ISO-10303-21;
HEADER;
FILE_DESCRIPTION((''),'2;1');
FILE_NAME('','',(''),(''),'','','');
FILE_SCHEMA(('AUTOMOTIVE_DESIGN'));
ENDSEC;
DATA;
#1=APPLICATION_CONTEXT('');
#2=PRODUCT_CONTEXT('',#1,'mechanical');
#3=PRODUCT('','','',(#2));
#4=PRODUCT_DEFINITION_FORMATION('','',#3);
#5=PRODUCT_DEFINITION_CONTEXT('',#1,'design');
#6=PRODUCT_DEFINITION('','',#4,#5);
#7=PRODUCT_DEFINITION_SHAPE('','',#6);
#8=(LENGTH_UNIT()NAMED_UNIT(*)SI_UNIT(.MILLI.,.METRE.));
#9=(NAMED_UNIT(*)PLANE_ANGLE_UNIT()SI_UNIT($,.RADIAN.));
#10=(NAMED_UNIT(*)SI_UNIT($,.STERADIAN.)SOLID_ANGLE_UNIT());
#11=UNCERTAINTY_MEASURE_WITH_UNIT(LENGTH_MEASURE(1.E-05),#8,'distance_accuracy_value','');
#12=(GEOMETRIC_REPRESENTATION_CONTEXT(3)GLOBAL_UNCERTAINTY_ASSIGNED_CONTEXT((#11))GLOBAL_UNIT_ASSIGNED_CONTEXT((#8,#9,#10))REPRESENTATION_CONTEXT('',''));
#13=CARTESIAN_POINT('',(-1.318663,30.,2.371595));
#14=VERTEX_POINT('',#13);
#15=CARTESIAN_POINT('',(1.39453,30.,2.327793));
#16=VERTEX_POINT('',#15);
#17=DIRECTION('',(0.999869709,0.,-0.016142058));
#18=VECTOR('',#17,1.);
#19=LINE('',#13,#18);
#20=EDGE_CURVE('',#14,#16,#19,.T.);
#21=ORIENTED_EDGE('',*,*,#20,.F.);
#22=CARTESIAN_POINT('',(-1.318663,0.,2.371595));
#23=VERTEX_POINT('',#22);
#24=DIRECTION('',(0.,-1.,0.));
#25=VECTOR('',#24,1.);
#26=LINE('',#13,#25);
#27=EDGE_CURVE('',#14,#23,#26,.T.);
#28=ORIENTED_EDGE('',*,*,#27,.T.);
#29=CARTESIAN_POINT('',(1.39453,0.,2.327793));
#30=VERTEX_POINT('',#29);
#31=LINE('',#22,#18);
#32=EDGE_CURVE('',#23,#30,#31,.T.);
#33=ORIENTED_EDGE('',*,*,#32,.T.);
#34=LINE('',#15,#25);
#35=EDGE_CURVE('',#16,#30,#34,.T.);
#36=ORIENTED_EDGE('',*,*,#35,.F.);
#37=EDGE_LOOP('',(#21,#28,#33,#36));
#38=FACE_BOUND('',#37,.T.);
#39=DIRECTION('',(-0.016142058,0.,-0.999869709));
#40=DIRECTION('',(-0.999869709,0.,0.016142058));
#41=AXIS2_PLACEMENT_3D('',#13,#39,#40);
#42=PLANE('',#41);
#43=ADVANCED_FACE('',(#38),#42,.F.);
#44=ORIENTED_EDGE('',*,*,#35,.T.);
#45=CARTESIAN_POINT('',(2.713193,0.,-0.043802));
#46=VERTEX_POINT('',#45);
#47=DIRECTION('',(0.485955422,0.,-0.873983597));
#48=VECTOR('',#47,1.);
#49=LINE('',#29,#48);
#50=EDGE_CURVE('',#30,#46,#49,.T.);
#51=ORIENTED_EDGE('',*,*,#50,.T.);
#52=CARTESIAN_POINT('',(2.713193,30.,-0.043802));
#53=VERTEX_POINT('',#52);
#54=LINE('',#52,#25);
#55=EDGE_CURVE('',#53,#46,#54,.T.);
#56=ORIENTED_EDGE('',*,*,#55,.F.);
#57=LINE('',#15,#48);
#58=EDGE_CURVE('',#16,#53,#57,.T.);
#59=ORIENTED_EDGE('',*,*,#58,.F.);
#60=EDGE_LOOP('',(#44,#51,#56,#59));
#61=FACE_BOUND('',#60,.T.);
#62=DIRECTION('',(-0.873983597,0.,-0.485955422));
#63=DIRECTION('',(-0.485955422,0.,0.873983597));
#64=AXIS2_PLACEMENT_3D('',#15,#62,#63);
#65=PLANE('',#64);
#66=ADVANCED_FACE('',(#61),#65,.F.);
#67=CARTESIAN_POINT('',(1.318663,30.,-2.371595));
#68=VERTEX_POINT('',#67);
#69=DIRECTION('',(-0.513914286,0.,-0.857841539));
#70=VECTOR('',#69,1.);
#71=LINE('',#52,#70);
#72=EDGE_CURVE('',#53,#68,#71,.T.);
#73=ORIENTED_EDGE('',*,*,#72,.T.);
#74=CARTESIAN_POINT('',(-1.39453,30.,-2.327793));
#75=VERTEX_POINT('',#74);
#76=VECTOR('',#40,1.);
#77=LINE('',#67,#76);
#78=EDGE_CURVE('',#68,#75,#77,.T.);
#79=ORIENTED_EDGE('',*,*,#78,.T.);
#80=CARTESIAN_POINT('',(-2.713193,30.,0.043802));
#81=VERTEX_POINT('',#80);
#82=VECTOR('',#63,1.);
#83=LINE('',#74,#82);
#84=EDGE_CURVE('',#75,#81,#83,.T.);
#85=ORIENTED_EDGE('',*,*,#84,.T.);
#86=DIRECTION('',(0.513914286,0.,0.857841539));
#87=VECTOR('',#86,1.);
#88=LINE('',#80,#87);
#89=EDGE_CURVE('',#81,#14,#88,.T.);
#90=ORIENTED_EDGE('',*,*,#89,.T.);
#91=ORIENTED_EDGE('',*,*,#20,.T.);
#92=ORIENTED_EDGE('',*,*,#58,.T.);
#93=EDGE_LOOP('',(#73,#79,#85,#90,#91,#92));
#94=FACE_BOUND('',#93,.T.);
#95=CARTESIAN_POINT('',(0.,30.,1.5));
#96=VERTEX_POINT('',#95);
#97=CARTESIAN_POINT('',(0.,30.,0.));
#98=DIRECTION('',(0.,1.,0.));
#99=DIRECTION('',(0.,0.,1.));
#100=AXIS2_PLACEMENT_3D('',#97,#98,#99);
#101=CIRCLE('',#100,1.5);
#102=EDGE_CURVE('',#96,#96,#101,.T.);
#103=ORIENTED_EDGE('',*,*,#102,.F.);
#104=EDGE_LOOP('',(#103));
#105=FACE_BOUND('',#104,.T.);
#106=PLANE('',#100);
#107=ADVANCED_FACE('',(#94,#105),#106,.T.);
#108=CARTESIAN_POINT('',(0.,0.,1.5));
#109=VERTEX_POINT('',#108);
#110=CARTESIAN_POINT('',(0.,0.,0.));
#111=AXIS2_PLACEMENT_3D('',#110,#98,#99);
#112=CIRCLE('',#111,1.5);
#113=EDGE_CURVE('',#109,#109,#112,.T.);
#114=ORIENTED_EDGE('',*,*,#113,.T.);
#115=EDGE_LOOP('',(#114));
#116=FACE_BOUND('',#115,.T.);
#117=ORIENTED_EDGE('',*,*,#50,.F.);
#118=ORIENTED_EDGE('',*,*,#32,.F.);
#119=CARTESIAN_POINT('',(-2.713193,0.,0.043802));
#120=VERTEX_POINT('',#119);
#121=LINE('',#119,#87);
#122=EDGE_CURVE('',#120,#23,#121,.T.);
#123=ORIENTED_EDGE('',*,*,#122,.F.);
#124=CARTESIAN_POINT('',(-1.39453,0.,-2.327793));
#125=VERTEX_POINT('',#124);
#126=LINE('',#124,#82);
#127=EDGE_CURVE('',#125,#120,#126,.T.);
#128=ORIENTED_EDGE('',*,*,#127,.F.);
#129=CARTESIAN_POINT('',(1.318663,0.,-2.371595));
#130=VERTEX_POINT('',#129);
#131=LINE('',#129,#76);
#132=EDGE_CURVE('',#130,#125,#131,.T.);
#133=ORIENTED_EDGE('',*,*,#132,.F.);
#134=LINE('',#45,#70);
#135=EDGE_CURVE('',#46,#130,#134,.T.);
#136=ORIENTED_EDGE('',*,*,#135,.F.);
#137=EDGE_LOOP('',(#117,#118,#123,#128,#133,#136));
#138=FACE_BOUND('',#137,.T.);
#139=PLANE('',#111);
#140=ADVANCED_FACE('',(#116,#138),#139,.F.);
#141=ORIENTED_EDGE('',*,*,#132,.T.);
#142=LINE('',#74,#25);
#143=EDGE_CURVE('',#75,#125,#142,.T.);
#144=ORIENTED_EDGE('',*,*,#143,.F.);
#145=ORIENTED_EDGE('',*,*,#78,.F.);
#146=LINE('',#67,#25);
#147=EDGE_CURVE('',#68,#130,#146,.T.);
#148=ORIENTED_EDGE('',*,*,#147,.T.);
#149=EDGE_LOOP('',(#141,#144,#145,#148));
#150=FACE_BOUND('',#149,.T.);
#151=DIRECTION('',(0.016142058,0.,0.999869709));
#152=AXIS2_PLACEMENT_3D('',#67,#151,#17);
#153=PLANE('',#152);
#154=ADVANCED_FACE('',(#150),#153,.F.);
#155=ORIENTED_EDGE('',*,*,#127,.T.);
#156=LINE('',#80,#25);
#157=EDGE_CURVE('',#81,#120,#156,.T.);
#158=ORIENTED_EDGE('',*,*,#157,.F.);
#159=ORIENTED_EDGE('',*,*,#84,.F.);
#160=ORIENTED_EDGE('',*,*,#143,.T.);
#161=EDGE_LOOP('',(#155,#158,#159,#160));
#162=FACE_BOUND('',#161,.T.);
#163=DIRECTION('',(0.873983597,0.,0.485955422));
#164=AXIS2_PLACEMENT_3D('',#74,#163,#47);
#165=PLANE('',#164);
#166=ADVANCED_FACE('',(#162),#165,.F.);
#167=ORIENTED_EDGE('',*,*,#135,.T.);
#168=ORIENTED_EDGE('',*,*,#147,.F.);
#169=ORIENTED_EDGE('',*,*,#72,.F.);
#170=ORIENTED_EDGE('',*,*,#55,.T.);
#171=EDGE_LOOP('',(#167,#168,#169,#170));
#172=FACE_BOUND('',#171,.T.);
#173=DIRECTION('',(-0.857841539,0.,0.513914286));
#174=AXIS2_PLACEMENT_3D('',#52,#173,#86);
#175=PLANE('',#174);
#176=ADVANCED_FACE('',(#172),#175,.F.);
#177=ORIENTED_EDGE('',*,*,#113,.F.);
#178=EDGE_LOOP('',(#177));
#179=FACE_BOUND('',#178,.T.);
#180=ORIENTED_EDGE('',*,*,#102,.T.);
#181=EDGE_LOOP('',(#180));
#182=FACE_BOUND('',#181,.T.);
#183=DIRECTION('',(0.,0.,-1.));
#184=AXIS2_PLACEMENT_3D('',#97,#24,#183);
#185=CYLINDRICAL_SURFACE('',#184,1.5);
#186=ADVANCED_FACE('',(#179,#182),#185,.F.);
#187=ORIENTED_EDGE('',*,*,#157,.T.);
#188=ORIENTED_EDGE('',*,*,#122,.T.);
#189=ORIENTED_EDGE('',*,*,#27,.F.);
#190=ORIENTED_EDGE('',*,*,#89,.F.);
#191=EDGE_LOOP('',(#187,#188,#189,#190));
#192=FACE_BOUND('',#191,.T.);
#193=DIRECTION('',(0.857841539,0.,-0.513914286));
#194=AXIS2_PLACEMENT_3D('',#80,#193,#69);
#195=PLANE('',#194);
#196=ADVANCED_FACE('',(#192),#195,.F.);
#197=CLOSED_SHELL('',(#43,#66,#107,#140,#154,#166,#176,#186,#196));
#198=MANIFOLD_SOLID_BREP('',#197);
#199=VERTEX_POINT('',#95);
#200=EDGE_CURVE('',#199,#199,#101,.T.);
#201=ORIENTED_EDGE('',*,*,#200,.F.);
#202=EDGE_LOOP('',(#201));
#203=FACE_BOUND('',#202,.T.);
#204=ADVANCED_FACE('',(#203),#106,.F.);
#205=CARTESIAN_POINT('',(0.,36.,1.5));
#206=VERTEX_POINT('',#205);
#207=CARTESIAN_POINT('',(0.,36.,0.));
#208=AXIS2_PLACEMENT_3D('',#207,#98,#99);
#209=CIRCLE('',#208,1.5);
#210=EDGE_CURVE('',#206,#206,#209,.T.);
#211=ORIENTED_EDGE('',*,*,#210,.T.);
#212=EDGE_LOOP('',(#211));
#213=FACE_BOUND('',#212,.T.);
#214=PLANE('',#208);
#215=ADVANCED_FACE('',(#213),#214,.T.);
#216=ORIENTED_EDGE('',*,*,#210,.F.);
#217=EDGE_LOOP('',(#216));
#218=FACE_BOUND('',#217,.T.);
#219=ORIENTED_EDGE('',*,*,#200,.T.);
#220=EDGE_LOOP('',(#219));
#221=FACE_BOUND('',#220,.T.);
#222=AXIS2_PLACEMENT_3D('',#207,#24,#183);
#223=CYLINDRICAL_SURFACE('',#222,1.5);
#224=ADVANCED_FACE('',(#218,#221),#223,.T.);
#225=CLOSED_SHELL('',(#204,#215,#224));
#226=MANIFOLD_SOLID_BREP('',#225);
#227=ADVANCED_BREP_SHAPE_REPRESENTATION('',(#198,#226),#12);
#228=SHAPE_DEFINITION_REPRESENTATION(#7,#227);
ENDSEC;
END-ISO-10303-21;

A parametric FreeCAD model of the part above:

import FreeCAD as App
import Part
import Sketcher

V = App.Vector


def add_polygon(sketch, points):
    """Adds a closed chain of lines whose ends are joined by coincident constraints."""
    first, n = sketch.GeometryCount, len(points)
    for a, b in zip(points, points[1:] + points[:1]):
        sketch.addGeometry(Part.LineSegment(App.Vector(*a, 0), App.Vector(*b, 0)), False)
    for i in range(n):
        sketch.addConstraint(Sketcher.Constraint("Coincident", first + i, 2, first + (i + 1) % n, 1))

doc = App.newDocument("Part")
body = doc.addObject("PartDesign::Body", "Body")

# Sketch on XZ plane
sketch1 = body.newObject("Sketcher::SketchObject", "Sketch")
sketch1.AttachmentSupport = (doc.getObject("XZ_Plane"), [""])
sketch1.MapMode = "FlatFace"
add_polygon(sketch1, [(1.39453, 2.327793), (2.713193, -0.043802), (1.318663, -2.371595), (-1.39453, -2.327793), (-2.713193, 0.043802), (-1.318663, 2.371595)])  # lines 0-5
sketch1.addGeometry(Part.Circle(V(0, 0, 0), V(0, 0, 1), 1.5), False)  # 6
sketch1.addConstraint(Sketcher.Constraint("Coincident", 6, 3, -1, 1))
sketch1.addConstraint(Sketcher.Constraint("Symmetric", 0, 2, 3, 2, -1, 1))
sketch1.addConstraint(Sketcher.Constraint("Symmetric", 1, 2, 4, 2, -1, 1))
sketch1.addConstraint(Sketcher.Constraint("Symmetric", 2, 2, 5, 2, -1, 1))
sketch1.addConstraint(Sketcher.Constraint("Equal", 0, 1))
sketch1.addConstraint(Sketcher.Constraint("Equal", 1, 2))
sketch1.addConstraint(Sketcher.Constraint("Diameter", 6, 3.0))
sketch1.addConstraint(Sketcher.Constraint("DistanceX", 2, 2, -1, 1, 1.39453))
sketch1.addConstraint(Sketcher.Constraint("DistanceX", 1, 2, 0, 2, 1.39453))
sketch1.addConstraint(Sketcher.Constraint("DistanceY", 2, 2, 0, 2, 2.28399))
sketch1.addConstraint(Sketcher.Constraint("DistanceY", 1, 2, 4, 2, 4.74319))
pad1 = body.newObject("PartDesign::Pad", "Pad")
pad1.Profile = sketch1
pad1.Length = 30
pad1.Reversed = True
body2 = doc.addObject("PartDesign::Body", "Body001")

# Sketch on XZ plane
sketch2 = body2.newObject("Sketcher::SketchObject", "Sketch001")
sketch2.AttachmentSupport = (doc.getObject("XZ_Plane001"), [""])
sketch2.MapMode = "FlatFace"
sketch2.AttachmentOffset = App.Placement(V(0, 0, -30), App.Rotation())
sketch2.addGeometry(Part.Circle(V(0, 0, 0), V(0, 0, 1), 1.5), False)
sketch2.addConstraint(Sketcher.Constraint("Coincident", 0, 3, -1, 1))
sketch2.addConstraint(Sketcher.Constraint("Diameter", 0, 3.0))
pad2 = body2.newObject("PartDesign::Pad", "Pad001")
pad2.Profile = sketch2
pad2.Length = 6
pad2.Reversed = True

doc.recompute()
